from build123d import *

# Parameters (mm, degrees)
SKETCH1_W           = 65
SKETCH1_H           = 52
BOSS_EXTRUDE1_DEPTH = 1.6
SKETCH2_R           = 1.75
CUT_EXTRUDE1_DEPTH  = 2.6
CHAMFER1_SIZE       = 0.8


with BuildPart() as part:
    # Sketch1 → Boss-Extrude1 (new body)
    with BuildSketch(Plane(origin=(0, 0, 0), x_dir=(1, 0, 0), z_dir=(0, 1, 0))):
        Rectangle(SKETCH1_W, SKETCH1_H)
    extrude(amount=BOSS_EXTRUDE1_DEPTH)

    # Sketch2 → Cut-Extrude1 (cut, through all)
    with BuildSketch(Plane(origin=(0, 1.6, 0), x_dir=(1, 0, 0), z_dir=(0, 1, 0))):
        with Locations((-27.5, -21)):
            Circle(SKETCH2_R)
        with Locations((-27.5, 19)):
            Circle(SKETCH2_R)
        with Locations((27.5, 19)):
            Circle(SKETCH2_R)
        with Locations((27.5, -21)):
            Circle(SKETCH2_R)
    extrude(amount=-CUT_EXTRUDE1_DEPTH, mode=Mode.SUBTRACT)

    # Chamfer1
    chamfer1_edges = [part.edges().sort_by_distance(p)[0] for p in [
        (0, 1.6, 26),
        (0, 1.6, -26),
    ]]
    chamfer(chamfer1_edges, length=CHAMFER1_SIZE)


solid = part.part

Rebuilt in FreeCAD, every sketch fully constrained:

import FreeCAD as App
import Part
import Sketcher


def edges_at(feature, points):
    """Names of the edges that pass closest to the given points."""
    edges = feature.Shape.Edges
    near = lambda p: min(range(len(edges)), key=lambda i: edges[i].distToShape(Part.Vertex(*p))[0])
    return sorted({f"Edge{near(p) + 1}" for p in points})


def add_polygon(sketch, points):
    """Adds a closed chain of lines whose ends are joined by coincident constraints."""
    first, n = sketch.GeometryCount, len(points)
    for a, b in zip(points, points[1:] + points[:1]):
        sketch.addGeometry(Part.LineSegment(App.Vector(*a, 0), App.Vector(*b, 0)), False)
    for i in range(n):
        sketch.addConstraint(Sketcher.Constraint("Coincident", first + i, 2, first + (i + 1) % n, 1))

doc = App.newDocument("Part")
body = doc.addObject("PartDesign::Body", "Body")

sketch1 = doc.addObject("Sketcher::SketchObject", "Sketch")
body.addObject(sketch1)
sketch1.AttachmentSupport = (doc.XZ_Plane, [""])
sketch1.MapMode = "FlatFace"
add_polygon(sketch1, [(-32.5, -26), (-32.5, 26), (32.5, 26), (32.5, -26)])
sketch1.addConstraint(Sketcher.Constraint("Vertical", 0))
sketch1.addConstraint(Sketcher.Constraint("Horizontal", 1))
sketch1.addConstraint(Sketcher.Constraint("Vertical", 2))
sketch1.addConstraint(Sketcher.Constraint("Horizontal", 3))
sketch1.addConstraint(Sketcher.Constraint("Symmetric", 0, 2, 2, 2, -1, 1))
sketch1.addConstraint(Sketcher.Constraint("DistanceX", 1, 1, 1, 2, 65.0))
sketch1.addConstraint(Sketcher.Constraint("DistanceY", 0, 1, 0, 2, 52.0))
pad1 = doc.addObject("PartDesign::Pad", "Pad")
body.addObject(pad1)
pad1.Profile = sketch1
pad1.Length = 1.6
pad1.Reversed = True

sketch2 = doc.addObject("Sketcher::SketchObject", "Sketch001")
body.addObject(sketch2)
sketch2.AttachmentSupport = (doc.XZ_Plane, [""])
sketch2.MapMode = "FlatFace"
sketch2.AttachmentOffset = App.Placement(App.Vector(0, 0, -1.6), App.Rotation())
sketch2.addGeometry(Part.Circle(App.Vector(-27.5, 21, 0), App.Vector(0, 0, 1), 1.75), False)
sketch2.addGeometry(Part.Circle(App.Vector(-27.5, -19, 0), App.Vector(0, 0, 1), 1.75), False)
sketch2.addGeometry(Part.Circle(App.Vector(27.5, -19, 0), App.Vector(0, 0, 1), 1.75), False)
sketch2.addGeometry(Part.Circle(App.Vector(27.5, 21, 0), App.Vector(0, 0, 1), 1.75), False)
sketch2.addConstraint(Sketcher.Constraint("Equal", 0, 1))
sketch2.addConstraint(Sketcher.Constraint("Equal", 1, 2))
sketch2.addConstraint(Sketcher.Constraint("Equal", 2, 3))
sketch2.addConstraint(Sketcher.Constraint("Symmetric", 1, 3, 2, 3, -2))
sketch2.addConstraint(Sketcher.Constraint("Symmetric", 0, 3, 3, 3, -2))
sketch2.addConstraint(Sketcher.Constraint("Vertical", 0, 3, 1, 3))
sketch2.addConstraint(Sketcher.Constraint("Diameter", 0, 3.5))
sketch2.addConstraint(Sketcher.Constraint("DistanceY", -1, 1, 0, 3, 21.0))
sketch2.addConstraint(Sketcher.Constraint("DistanceY", 1, 3, -1, 1, 19.0))
sketch2.addConstraint(Sketcher.Constraint("DistanceX", 1, 3, 2, 3, 55.0))
pocket1 = doc.addObject("PartDesign::Pocket", "Pocket")
body.addObject(pocket1)
pocket1.Profile = sketch2
pocket1.Type = "ThroughAll"
pocket1.Reversed = True
doc.recompute()

chamfer = doc.addObject("PartDesign::Chamfer", "Chamfer")
body.addObject(chamfer)
chamfer.Base = (pocket1, edges_at(pocket1, [(0, 1.6, 26), (0, 1.6, -26)]))
chamfer.Size = 0.8

doc.recompute()
